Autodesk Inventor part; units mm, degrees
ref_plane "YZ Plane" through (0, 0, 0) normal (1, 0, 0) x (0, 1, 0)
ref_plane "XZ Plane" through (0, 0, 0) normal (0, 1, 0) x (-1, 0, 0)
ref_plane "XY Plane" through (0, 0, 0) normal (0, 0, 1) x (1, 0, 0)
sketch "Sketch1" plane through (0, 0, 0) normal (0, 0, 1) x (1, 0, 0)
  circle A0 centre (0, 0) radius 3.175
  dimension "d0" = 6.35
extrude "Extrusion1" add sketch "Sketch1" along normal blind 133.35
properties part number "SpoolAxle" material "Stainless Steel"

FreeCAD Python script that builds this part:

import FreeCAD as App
import Part
import Sketcher
Q = App.Units.Quantity

doc = App.newDocument("Part")
body = doc.addObject("PartDesign::Body", "Body")

# Sketch on XY plane
sketch1 = body.newObject("Sketcher::SketchObject", "Sketch")
sketch1.AttachmentSupport = (doc.getObject("XY_Plane"), [""])
sketch1.MapMode = "FlatFace"
sketch1.addGeometry(Part.Circle(App.Vector(0, 0, 0), App.Vector(0, 0, 1), 3.2), False)
sketch1.addConstraint([
    Sketcher.Constraint("Coincident", 0, 3, -1, 1),
    Sketcher.Constraint("Diameter", 0, Q("0.25 in")),
])
pad1 = body.newObject("PartDesign::Pad", "Pad")
pad1.Profile = sketch1
pad1.Length = Q("5.25 in")

doc.recompute()
